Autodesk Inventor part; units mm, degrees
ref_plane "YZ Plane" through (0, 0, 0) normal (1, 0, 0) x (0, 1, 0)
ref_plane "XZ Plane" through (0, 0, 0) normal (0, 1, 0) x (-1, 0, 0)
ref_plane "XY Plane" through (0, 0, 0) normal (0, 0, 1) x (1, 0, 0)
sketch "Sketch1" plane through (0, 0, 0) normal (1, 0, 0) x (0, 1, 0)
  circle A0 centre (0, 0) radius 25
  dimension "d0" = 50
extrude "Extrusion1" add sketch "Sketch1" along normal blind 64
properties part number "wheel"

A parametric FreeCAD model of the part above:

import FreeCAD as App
import Part
import Sketcher
from FreeCAD import Vector
Q = App.Units.Quantity

doc = App.newDocument("Part")
body = doc.addObject("PartDesign::Body", "Body")

# Sketch on YZ plane
sketch1 = body.newObject("Sketcher::SketchObject", "Sketch")
sketch1.AttachmentSupport = (doc.getObject("YZ_Plane"), [""])
sketch1.MapMode = "FlatFace"
sketch1.addGeometry(Part.Circle(Vector(0, 0, 0), Vector(0, 0, 1), 25), False)
sketch1.addConstraint(Sketcher.Constraint("Coincident", 0, 3, -1, 1))
sketch1.addConstraint(Sketcher.Constraint("Diameter", 0, Q("50 mm")))
pad1 = body.newObject("PartDesign::Pad", "Pad")
pad1.Profile = sketch1
pad1.Length = 64

doc.recompute()
